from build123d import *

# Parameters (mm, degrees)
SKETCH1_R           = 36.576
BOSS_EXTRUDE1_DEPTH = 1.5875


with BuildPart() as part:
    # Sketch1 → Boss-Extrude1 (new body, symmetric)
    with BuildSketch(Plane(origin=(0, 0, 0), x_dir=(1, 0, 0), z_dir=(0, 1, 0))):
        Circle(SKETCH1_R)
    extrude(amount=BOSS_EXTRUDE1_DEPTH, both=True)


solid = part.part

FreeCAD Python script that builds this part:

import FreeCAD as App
import Part
import Sketcher

V = App.Vector
Q = App.Units.Quantity

doc = App.newDocument("Part")
params = doc.addObject("Spreadsheet::Sheet", "Params")
for row, (alias, value) in enumerate([
    ("sketch1_diameter", "2.88 in"),
    ("pad1_length", "0.125 in"),
], start=1):
    params.set(f"A{row}", alias)
    params.set(f"B{row}", "=" + value)
    params.setAlias(f"B{row}", alias)

body = doc.addObject("PartDesign::Body", "Body")

sketch1 = body.newObject("Sketcher::SketchObject", "Sketch")
sketch1.AttachmentSupport = (doc.getObject("XZ_Plane"), [""])
sketch1.MapMode = "FlatFace"
sketch1.addGeometry(Part.Circle(V(0, 0, 0), V(0, 0, 1), 37), False)
sketch1.addConstraint(Sketcher.Constraint("Coincident", 0, 3, -1, 1))
sketch1.addConstraint(Sketcher.Constraint("Diameter", 0, Q("2.88 in")))
sketch1.setExpression("Constraints[1]", "Params.sketch1_diameter")
pad1 = body.newObject("PartDesign::Pad", "Pad")
pad1.Profile = sketch1
pad1.setExpression("Length", "Params.pad1_length")
pad1.Midplane = True

doc.recompute()
